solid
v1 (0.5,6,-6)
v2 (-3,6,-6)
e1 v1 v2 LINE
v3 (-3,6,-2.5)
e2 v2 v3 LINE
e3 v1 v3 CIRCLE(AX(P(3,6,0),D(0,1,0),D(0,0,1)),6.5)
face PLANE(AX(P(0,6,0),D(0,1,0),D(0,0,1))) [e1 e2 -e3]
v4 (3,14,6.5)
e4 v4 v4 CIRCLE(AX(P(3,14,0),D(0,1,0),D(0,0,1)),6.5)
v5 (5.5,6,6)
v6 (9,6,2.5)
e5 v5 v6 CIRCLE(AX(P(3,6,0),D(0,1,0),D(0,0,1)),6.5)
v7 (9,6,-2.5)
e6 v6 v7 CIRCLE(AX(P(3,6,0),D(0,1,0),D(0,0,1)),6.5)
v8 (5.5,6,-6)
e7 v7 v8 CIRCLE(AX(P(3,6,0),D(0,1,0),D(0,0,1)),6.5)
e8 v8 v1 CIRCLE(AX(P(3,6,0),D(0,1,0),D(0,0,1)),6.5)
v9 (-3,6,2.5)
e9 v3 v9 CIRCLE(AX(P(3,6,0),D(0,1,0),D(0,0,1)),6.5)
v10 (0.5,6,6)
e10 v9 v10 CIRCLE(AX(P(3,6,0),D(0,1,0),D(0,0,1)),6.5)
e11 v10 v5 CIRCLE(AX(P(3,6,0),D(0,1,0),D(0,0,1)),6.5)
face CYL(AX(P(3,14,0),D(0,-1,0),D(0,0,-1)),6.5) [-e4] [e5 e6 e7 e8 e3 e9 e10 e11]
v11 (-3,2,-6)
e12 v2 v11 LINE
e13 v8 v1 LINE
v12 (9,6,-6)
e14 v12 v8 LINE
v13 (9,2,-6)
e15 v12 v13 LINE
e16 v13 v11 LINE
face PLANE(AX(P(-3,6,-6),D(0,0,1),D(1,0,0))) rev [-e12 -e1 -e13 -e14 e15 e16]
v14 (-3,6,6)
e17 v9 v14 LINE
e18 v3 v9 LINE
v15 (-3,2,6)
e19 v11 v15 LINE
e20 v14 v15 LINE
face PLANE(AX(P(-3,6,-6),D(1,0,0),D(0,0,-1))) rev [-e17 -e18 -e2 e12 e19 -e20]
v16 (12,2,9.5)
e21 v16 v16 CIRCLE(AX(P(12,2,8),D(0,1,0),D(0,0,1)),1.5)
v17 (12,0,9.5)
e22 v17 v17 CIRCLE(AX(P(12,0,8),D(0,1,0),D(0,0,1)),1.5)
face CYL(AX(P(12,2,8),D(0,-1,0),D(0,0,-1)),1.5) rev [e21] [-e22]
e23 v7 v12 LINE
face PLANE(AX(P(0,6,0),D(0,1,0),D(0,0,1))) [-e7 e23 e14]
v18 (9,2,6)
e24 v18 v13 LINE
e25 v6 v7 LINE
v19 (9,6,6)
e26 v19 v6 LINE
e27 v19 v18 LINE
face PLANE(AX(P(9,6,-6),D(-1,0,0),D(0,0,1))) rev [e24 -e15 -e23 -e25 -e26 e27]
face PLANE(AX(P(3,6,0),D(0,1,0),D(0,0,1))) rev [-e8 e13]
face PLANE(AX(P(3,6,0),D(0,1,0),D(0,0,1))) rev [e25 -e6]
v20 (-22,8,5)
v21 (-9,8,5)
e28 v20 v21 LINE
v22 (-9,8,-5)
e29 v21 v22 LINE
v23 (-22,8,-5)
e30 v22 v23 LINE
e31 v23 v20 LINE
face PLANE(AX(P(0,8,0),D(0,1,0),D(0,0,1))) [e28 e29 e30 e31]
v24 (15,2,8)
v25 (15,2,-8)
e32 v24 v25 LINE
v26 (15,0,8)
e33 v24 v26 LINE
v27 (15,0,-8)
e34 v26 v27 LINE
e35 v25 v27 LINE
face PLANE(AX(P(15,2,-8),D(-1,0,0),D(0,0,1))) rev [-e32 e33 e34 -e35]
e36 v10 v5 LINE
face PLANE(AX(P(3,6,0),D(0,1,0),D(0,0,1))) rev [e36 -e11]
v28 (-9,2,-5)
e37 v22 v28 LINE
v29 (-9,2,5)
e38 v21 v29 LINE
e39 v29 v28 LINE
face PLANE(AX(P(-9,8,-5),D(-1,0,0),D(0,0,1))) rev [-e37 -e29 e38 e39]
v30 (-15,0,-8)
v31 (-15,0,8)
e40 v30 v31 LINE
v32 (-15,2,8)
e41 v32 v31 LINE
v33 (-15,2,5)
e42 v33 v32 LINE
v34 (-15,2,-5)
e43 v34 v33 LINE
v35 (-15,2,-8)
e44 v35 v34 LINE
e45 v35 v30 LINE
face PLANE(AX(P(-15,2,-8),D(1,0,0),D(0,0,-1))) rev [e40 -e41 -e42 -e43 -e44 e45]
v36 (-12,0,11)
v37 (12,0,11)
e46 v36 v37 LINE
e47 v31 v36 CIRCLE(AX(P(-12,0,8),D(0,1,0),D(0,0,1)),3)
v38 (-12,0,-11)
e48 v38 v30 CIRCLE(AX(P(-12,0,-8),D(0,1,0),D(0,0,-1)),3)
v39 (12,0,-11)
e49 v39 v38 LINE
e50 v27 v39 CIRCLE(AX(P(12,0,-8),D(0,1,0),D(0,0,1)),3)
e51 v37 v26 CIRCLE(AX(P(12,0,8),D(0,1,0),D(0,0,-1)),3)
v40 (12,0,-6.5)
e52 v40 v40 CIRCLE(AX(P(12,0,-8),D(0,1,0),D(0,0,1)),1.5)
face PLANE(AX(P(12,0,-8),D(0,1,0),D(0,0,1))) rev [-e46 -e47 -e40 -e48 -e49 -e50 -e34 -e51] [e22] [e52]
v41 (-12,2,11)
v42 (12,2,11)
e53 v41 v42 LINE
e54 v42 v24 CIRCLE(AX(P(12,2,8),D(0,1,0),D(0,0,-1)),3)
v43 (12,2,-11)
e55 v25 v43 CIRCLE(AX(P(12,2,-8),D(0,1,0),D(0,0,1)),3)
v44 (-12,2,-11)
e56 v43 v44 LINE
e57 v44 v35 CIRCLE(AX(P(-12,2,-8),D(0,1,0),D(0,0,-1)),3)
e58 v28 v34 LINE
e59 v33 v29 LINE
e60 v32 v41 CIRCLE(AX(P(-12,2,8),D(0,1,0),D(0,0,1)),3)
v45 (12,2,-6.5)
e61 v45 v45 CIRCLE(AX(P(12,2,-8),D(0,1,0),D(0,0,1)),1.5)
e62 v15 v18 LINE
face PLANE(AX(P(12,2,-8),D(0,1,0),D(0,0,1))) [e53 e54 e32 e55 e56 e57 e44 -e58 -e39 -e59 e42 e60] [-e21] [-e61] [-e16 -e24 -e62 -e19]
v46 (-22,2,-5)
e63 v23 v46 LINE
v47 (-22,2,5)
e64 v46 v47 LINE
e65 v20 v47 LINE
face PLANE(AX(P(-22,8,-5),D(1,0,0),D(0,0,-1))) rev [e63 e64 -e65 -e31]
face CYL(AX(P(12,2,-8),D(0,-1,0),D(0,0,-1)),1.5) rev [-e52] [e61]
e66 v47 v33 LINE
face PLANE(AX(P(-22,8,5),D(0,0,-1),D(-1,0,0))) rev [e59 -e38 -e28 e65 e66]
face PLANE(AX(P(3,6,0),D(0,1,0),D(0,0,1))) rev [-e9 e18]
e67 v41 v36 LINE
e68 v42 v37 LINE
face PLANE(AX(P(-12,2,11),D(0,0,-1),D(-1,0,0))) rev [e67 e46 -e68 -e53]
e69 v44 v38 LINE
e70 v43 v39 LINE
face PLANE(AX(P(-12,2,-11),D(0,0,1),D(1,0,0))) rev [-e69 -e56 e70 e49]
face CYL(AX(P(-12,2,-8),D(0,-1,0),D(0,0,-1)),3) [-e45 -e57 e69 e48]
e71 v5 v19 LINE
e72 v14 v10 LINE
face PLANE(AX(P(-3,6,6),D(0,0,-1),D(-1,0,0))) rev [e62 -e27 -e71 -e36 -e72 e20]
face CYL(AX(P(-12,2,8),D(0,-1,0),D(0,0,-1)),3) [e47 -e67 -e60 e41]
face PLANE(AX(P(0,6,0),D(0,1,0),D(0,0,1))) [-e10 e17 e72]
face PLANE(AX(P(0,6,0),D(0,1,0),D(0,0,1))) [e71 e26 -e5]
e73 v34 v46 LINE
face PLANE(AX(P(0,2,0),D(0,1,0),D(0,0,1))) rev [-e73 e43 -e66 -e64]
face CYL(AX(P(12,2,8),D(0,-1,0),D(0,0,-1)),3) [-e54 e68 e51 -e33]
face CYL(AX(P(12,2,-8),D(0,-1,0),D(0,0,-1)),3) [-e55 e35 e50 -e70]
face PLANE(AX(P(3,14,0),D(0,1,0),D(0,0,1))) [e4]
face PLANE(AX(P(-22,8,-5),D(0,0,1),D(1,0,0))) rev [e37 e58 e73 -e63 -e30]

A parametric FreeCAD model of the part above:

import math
import FreeCAD as App
import Part
import Sketcher
Q = App.Units.Quantity

doc = App.newDocument("Part")
body = doc.addObject("PartDesign::Body", "Body")

sketch1 = doc.addObject("Sketcher::SketchObject", "Sketch")
body.addObject(sketch1)
sketch1.AttachmentSupport = (doc.XZ_Plane, [""])
sketch1.MapMode = "FlatFace"
sketch1.addGeometry(Part.LineSegment(App.Vector(12, -11, 0), App.Vector(-12, -11, 0)), False)
sketch1.addGeometry(Part.ArcOfCircle(Part.Circle(App.Vector(-12, -8, 0), App.Vector(0, 0, 1), 3), math.radians(180), math.radians(270)), False)
sketch1.addGeometry(Part.LineSegment(App.Vector(-15, -8, 0), App.Vector(-15, 8, 0)), False)
sketch1.addGeometry(Part.ArcOfCircle(Part.Circle(App.Vector(-12, 8, 0), App.Vector(0, 0, 1), 3), math.radians(90), math.radians(180)), False)
sketch1.addGeometry(Part.LineSegment(App.Vector(-12, 11, 0), App.Vector(12, 11, 0)), False)
sketch1.addGeometry(Part.ArcOfCircle(Part.Circle(App.Vector(12, 8, 0), App.Vector(0, 0, 1), 3), math.radians(0), math.radians(90)), False)
sketch1.addGeometry(Part.LineSegment(App.Vector(15, 8, 0), App.Vector(15, -8, 0)), False)
sketch1.addGeometry(Part.ArcOfCircle(Part.Circle(App.Vector(12, -8, 0), App.Vector(0, 0, 1), 3), math.radians(-90), math.radians(0)), False)
sketch1.addGeometry(Part.Circle(App.Vector(12, 8, 0), App.Vector(0, 0, 1), 1.5), False)
sketch1.addGeometry(Part.Circle(App.Vector(12, -8, 0), App.Vector(0, 0, 1), 1.5), False)
sketch1.addConstraint(Sketcher.Constraint("Tangent", 0, 2, 1, 2))
sketch1.addConstraint(Sketcher.Constraint("Tangent", 1, 1, 2, 1))
sketch1.addConstraint(Sketcher.Constraint("Tangent", 2, 2, 3, 2))
sketch1.addConstraint(Sketcher.Constraint("Tangent", 3, 1, 4, 1))
sketch1.addConstraint(Sketcher.Constraint("Tangent", 4, 2, 5, 2))
sketch1.addConstraint(Sketcher.Constraint("Tangent", 5, 1, 6, 1))
sketch1.addConstraint(Sketcher.Constraint("Tangent", 6, 2, 7, 2))
sketch1.addConstraint(Sketcher.Constraint("Tangent", 7, 1, 0, 1))
sketch1.addConstraint(Sketcher.Constraint("Horizontal", 0))
sketch1.addConstraint(Sketcher.Constraint("Vertical", 2))
sketch1.addConstraint(Sketcher.Constraint("Horizontal", 4))
sketch1.addConstraint(Sketcher.Constraint("Vertical", 6))
sketch1.addConstraint(Sketcher.Constraint("Coincident", 8, 3, 5, 3))
sketch1.addConstraint(Sketcher.Constraint("Coincident", 9, 3, 7, 3))
sketch1.addConstraint(Sketcher.Constraint("Equal", 1, 3))
sketch1.addConstraint(Sketcher.Constraint("Equal", 3, 5))
sketch1.addConstraint(Sketcher.Constraint("Equal", 5, 7))
sketch1.addConstraint(Sketcher.Constraint("Equal", 8, 9))
sketch1.addConstraint(Sketcher.Constraint("Symmetric", 1, 3, 5, 3, -1, 1))
sketch1.addConstraint(Sketcher.Constraint("Diameter", 8, Q("3 mm")))
sketch1.addConstraint(Sketcher.Constraint("Radius", 1, Q("3 mm")))
sketch1.addConstraint(Sketcher.Constraint("DistanceX", 0, 2, 0, 1, Q("24 mm")))
sketch1.addConstraint(Sketcher.Constraint("DistanceY", 2, 1, 2, 2, Q("16 mm")))
pad1 = doc.addObject("PartDesign::Pad", "Pad")
body.addObject(pad1)
pad1.Profile = sketch1
pad1.Length = 2
pad1.Reversed = True

sketch2 = doc.addObject("Sketcher::SketchObject", "Sketch001")
body.addObject(sketch2)
sketch2.AttachmentSupport = (doc.XZ_Plane, [""])
sketch2.MapMode = "FlatFace"
sketch2.AttachmentOffset = App.Placement(App.Vector(0, 0, -2), App.Rotation())
sketch2.addGeometry(Part.LineSegment(App.Vector(-22, -5, 0), App.Vector(-22, 5, 0)), False)
sketch2.addGeometry(Part.LineSegment(App.Vector(-22, 5, 0), App.Vector(-9, 5, 0)), False)
sketch2.addGeometry(Part.LineSegment(App.Vector(-9, 5, 0), App.Vector(-9, -5, 0)), False)
sketch2.addGeometry(Part.LineSegment(App.Vector(-9, -5, 0), App.Vector(-22, -5, 0)), False)
sketch2.addConstraint(Sketcher.Constraint("Coincident", 0, 2, 1, 1))
sketch2.addConstraint(Sketcher.Constraint("Coincident", 1, 2, 2, 1))
sketch2.addConstraint(Sketcher.Constraint("Coincident", 2, 2, 3, 1))
sketch2.addConstraint(Sketcher.Constraint("Coincident", 3, 2, 0, 1))
sketch2.addConstraint(Sketcher.Constraint("Vertical", 0))
sketch2.addConstraint(Sketcher.Constraint("Horizontal", 1))
sketch2.addConstraint(Sketcher.Constraint("Vertical", 2))
sketch2.addConstraint(Sketcher.Constraint("Horizontal", 3))
sketch2.addConstraint(Sketcher.Constraint("DistanceX", 1, 1, 1, 2, Q("13 mm")))
sketch2.addConstraint(Sketcher.Constraint("DistanceY", 0, 1, 0, 2, Q("10 mm")))
sketch2.addConstraint(Sketcher.Constraint("DistanceX", 0, 2, -1, 1, Q("22 mm")))
sketch2.addConstraint(Sketcher.Constraint("DistanceY", -1, 1, 0, 2, Q("5 mm")))
pad2 = doc.addObject("PartDesign::Pad", "Pad001")
body.addObject(pad2)
pad2.Profile = sketch2
pad2.Length = 6
pad2.Reversed = True

sketch3 = doc.addObject("Sketcher::SketchObject", "Sketch002")
body.addObject(sketch3)
sketch3.AttachmentSupport = (doc.XZ_Plane, [""])
sketch3.MapMode = "FlatFace"
sketch3.AttachmentOffset = App.Placement(App.Vector(0, 0, -2), App.Rotation())
sketch3.addGeometry(Part.LineSegment(App.Vector(-3, -6, 0), App.Vector(-3, 6, 0)), False)
sketch3.addGeometry(Part.LineSegment(App.Vector(-3, 6, 0), App.Vector(9, 6, 0)), False)
sketch3.addGeometry(Part.LineSegment(App.Vector(9, 6, 0), App.Vector(9, -6, 0)), False)
sketch3.addGeometry(Part.LineSegment(App.Vector(9, -6, 0), App.Vector(-3, -6, 0)), False)
sketch3.addConstraint(Sketcher.Constraint("Coincident", 0, 2, 1, 1))
sketch3.addConstraint(Sketcher.Constraint("Coincident", 1, 2, 2, 1))
sketch3.addConstraint(Sketcher.Constraint("Coincident", 2, 2, 3, 1))
sketch3.addConstraint(Sketcher.Constraint("Coincident", 3, 2, 0, 1))
sketch3.addConstraint(Sketcher.Constraint("Vertical", 0))
sketch3.addConstraint(Sketcher.Constraint("Horizontal", 1))
sketch3.addConstraint(Sketcher.Constraint("Vertical", 2))
sketch3.addConstraint(Sketcher.Constraint("Horizontal", 3))
sketch3.addConstraint(Sketcher.Constraint("Equal", 3, 0))
sketch3.addConstraint(Sketcher.Constraint("DistanceX", 1, 1, 1, 2, Q("12 mm")))
sketch3.addConstraint(Sketcher.Constraint("DistanceX", 0, 2, -1, 1, Q("3 mm")))
sketch3.addConstraint(Sketcher.Constraint("DistanceY", -1, 1, 0, 2, Q("6 mm")))
pad3 = doc.addObject("PartDesign::Pad", "Pad002")
body.addObject(pad3)
pad3.Profile = sketch3
pad3.Length = 4
pad3.Reversed = True

sketch4 = doc.addObject("Sketcher::SketchObject", "Sketch003")
body.addObject(sketch4)
sketch4.AttachmentSupport = (doc.XZ_Plane, [""])
sketch4.MapMode = "FlatFace"
sketch4.AttachmentOffset = App.Placement(App.Vector(0, 0, -6), App.Rotation())
sketch4.addGeometry(Part.Circle(App.Vector(3, 0, 0), App.Vector(0, 0, 1), 6), False)
sketch4.addConstraint(Sketcher.Constraint("PointOnObject", 0, 3, -1))
sketch4.addConstraint(Sketcher.Constraint("Diameter", 0, Q("13 mm")))
sketch4.addConstraint(Sketcher.Constraint("DistanceX", -1, 1, 0, 3, Q("3 mm")))
pad4 = doc.addObject("PartDesign::Pad", "Pad003")
body.addObject(pad4)
pad4.Profile = sketch4
pad4.Length = 8
pad4.Reversed = True

doc.recompute()
